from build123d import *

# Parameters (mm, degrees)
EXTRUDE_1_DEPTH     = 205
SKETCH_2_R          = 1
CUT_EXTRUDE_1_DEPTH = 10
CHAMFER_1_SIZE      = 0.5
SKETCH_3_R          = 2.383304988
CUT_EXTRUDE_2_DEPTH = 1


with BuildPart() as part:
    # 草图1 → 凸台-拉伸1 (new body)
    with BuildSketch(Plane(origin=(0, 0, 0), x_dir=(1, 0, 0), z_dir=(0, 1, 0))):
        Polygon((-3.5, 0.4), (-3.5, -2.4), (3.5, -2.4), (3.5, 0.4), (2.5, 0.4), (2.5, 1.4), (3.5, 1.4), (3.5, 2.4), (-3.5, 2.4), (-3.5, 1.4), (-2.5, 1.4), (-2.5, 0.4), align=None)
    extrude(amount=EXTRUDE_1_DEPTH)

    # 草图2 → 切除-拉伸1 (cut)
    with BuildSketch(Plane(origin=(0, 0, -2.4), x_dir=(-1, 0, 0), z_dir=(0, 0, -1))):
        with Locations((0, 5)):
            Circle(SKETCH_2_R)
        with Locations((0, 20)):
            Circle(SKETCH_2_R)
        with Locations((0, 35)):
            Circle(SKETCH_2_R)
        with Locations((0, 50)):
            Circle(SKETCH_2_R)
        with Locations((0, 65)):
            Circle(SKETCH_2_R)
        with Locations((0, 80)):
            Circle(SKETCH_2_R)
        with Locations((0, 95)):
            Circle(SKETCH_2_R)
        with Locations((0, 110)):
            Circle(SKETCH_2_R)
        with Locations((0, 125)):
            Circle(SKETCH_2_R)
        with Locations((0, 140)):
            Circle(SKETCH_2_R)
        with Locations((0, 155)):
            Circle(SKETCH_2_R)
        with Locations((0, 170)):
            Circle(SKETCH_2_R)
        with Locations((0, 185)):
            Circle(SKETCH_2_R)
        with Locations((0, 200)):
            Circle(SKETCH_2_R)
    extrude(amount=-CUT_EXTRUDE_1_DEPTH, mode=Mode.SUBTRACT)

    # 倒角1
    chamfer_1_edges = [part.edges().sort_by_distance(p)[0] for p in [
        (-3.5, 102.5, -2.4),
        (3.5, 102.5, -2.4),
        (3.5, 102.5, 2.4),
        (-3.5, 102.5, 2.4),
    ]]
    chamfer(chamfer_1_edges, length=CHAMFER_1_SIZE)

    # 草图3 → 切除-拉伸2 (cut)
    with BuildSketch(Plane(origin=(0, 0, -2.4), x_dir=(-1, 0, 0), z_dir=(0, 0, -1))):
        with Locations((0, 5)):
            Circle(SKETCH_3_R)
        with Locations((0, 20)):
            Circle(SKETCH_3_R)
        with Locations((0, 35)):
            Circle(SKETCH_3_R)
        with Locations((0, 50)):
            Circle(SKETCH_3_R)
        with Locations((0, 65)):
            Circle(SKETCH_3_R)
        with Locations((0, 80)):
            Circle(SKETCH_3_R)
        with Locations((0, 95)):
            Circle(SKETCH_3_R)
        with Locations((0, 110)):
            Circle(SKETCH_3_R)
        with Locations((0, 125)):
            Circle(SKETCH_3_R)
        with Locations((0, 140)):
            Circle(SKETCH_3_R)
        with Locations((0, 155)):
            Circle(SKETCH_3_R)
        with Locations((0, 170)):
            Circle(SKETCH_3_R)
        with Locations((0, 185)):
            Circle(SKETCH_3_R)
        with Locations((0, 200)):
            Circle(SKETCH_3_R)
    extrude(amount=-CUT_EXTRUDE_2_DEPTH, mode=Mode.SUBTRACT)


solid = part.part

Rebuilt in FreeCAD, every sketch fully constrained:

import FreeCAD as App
import Part
import Sketcher
from FreeCAD import Vector
Q = App.Units.Quantity


def edges_at(feature, points):
    """Names of the edges that pass closest to the given points."""
    edges = feature.Shape.Edges
    near = lambda p: min(range(len(edges)), key=lambda i: edges[i].distToShape(Part.Vertex(*p))[0])
    return sorted({f"Edge{near(p) + 1}" for p in points})

doc = App.newDocument("Part")
body = doc.addObject("PartDesign::Body", "Body")

# Sketch on XZ plane
sketch1 = doc.addObject("Sketcher::SketchObject", "Sketch")
body.addObject(sketch1)
sketch1.AttachmentSupport = (doc.XZ_Plane, [""])
sketch1.MapMode = "FlatFace"
sketch1.addGeometry(Part.LineSegment(Vector(-3.5, -0.4, 0), Vector(-3.5, 2.4, 0)), False)
sketch1.addGeometry(Part.LineSegment(Vector(-3.5, 2.4, 0), Vector(3.5, 2.4, 0)), False)
sketch1.addGeometry(Part.LineSegment(Vector(3.5, 2.4, 0), Vector(3.5, -0.4, 0)), False)
sketch1.addGeometry(Part.LineSegment(Vector(3.5, -0.4, 0), Vector(2.5, -0.4, 0)), False)
sketch1.addGeometry(Part.LineSegment(Vector(2.5, -0.4, 0), Vector(2.5, -1.4, 0)), False)
sketch1.addGeometry(Part.LineSegment(Vector(2.5, -1.4, 0), Vector(3.5, -1.4, 0)), False)
sketch1.addGeometry(Part.LineSegment(Vector(3.5, -1.4, 0), Vector(3.5, -2.4, 0)), False)
sketch1.addGeometry(Part.LineSegment(Vector(3.5, -2.4, 0), Vector(-3.5, -2.4, 0)), False)
sketch1.addGeometry(Part.LineSegment(Vector(-3.5, -2.4, 0), Vector(-3.5, -1.4, 0)), False)
sketch1.addGeometry(Part.LineSegment(Vector(-3.5, -1.4, 0), Vector(-2.5, -1.4, 0)), False)
sketch1.addGeometry(Part.LineSegment(Vector(-2.5, -1.4, 0), Vector(-2.5, -0.4, 0)), False)
sketch1.addGeometry(Part.LineSegment(Vector(-2.5, -0.4, 0), Vector(-3.5, -0.4, 0)), False)
sketch1.addConstraint(Sketcher.Constraint("Coincident", 0, 2, 1, 1))
sketch1.addConstraint(Sketcher.Constraint("Coincident", 1, 2, 2, 1))
sketch1.addConstraint(Sketcher.Constraint("Coincident", 2, 2, 3, 1))
sketch1.addConstraint(Sketcher.Constraint("Coincident", 3, 2, 4, 1))
sketch1.addConstraint(Sketcher.Constraint("Coincident", 4, 2, 5, 1))
sketch1.addConstraint(Sketcher.Constraint("Coincident", 5, 2, 6, 1))
sketch1.addConstraint(Sketcher.Constraint("Coincident", 6, 2, 7, 1))
sketch1.addConstraint(Sketcher.Constraint("Coincident", 7, 2, 8, 1))
sketch1.addConstraint(Sketcher.Constraint("Coincident", 8, 2, 9, 1))
sketch1.addConstraint(Sketcher.Constraint("Coincident", 9, 2, 10, 1))
sketch1.addConstraint(Sketcher.Constraint("Coincident", 10, 2, 11, 1))
sketch1.addConstraint(Sketcher.Constraint("Coincident", 11, 2, 0, 1))
sketch1.addConstraint(Sketcher.Constraint("Vertical", 0))
sketch1.addConstraint(Sketcher.Constraint("Horizontal", 1))
sketch1.addConstraint(Sketcher.Constraint("Vertical", 2))
sketch1.addConstraint(Sketcher.Constraint("Horizontal", 3))
sketch1.addConstraint(Sketcher.Constraint("Vertical", 4))
sketch1.addConstraint(Sketcher.Constraint("Horizontal", 5))
sketch1.addConstraint(Sketcher.Constraint("Vertical", 6))
sketch1.addConstraint(Sketcher.Constraint("Horizontal", 7))
sketch1.addConstraint(Sketcher.Constraint("Vertical", 8))
sketch1.addConstraint(Sketcher.Constraint("Horizontal", 9))
sketch1.addConstraint(Sketcher.Constraint("Vertical", 10))
sketch1.addConstraint(Sketcher.Constraint("Horizontal", 11))
sketch1.addConstraint(Sketcher.Constraint("Symmetric", 0, 2, 6, 2, -1, 1))
sketch1.addConstraint(Sketcher.Constraint("Symmetric", 5, 2, 8, 2, -2))
sketch1.addConstraint(Sketcher.Constraint("Symmetric", 3, 2, 10, 2, -2))
sketch1.addConstraint(Sketcher.Constraint("Vertical", 2, 2, 5, 2))
sketch1.addConstraint(Sketcher.Constraint("Equal", 11, 4))
sketch1.addConstraint(Sketcher.Constraint("Equal", 4, 6))
sketch1.addConstraint(Sketcher.Constraint("DistanceX", 1, 1, 1, 2, Q("7 mm")))
sketch1.addConstraint(Sketcher.Constraint("DistanceX", 3, 2, 3, 1, Q("1 mm")))
sketch1.addConstraint(Sketcher.Constraint("DistanceY", 0, 1, 0, 2, Q("2.8 mm")))
pad1 = doc.addObject("PartDesign::Pad", "Pad")
body.addObject(pad1)
pad1.Profile = sketch1
pad1.Length = 205
pad1.Reversed = True

# Sketch on XY plane
sketch2 = doc.addObject("Sketcher::SketchObject", "Sketch001")
body.addObject(sketch2)
sketch2.AttachmentSupport = (doc.XY_Plane, [""])
sketch2.MapMode = "FlatFace"
sketch2.AttachmentOffset = App.Placement(Vector(0, 0, -2.4), App.Rotation())
sketch2.addGeometry(Part.Circle(Vector(0, 5, 0), Vector(0, 0, 1), 1), False)
sketch2.addGeometry(Part.Circle(Vector(0, 20, 0), Vector(0, 0, 1), 1), False)
sketch2.addGeometry(Part.Circle(Vector(0, 35, 0), Vector(0, 0, 1), 1), False)
sketch2.addGeometry(Part.Circle(Vector(0, 50, 0), Vector(0, 0, 1), 1), False)
sketch2.addGeometry(Part.Circle(Vector(0, 65, 0), Vector(0, 0, 1), 1), False)
sketch2.addGeometry(Part.Circle(Vector(0, 80, 0), Vector(0, 0, 1), 1), False)
sketch2.addGeometry(Part.Circle(Vector(0, 95, 0), Vector(0, 0, 1), 1), False)
sketch2.addGeometry(Part.Circle(Vector(0, 110, 0), Vector(0, 0, 1), 1), False)
sketch2.addGeometry(Part.Circle(Vector(0, 125, 0), Vector(0, 0, 1), 1), False)
sketch2.addGeometry(Part.Circle(Vector(0, 140, 0), Vector(0, 0, 1), 1), False)
sketch2.addGeometry(Part.Circle(Vector(0, 155, 0), Vector(0, 0, 1), 1), False)
sketch2.addGeometry(Part.Circle(Vector(0, 170, 0), Vector(0, 0, 1), 1), False)
sketch2.addGeometry(Part.Circle(Vector(0, 185, 0), Vector(0, 0, 1), 1), False)
sketch2.addGeometry(Part.Circle(Vector(0, 200, 0), Vector(0, 0, 1), 1), False)
sketch2.addConstraint(Sketcher.Constraint("Equal", 0, 1))
sketch2.addConstraint(Sketcher.Constraint("Equal", 1, 2))
sketch2.addConstraint(Sketcher.Constraint("Equal", 2, 3))
sketch2.addConstraint(Sketcher.Constraint("Equal", 3, 4))
sketch2.addConstraint(Sketcher.Constraint("Equal", 4, 5))
sketch2.addConstraint(Sketcher.Constraint("Equal", 5, 6))
sketch2.addConstraint(Sketcher.Constraint("Equal", 6, 7))
sketch2.addConstraint(Sketcher.Constraint("Equal", 7, 8))
sketch2.addConstraint(Sketcher.Constraint("Equal", 8, 9))
sketch2.addConstraint(Sketcher.Constraint("Equal", 9, 10))
sketch2.addConstraint(Sketcher.Constraint("Equal", 10, 11))
sketch2.addConstraint(Sketcher.Constraint("Equal", 11, 12))
sketch2.addConstraint(Sketcher.Constraint("Equal", 12, 13))
sketch2.addConstraint(Sketcher.Constraint("PointOnObject", 0, 3, -2))
sketch2.addConstraint(Sketcher.Constraint("PointOnObject", 1, 3, -2))
sketch2.addConstraint(Sketcher.Constraint("PointOnObject", 2, 3, -2))
sketch2.addConstraint(Sketcher.Constraint("PointOnObject", 3, 3, -2))
sketch2.addConstraint(Sketcher.Constraint("PointOnObject", 4, 3, -2))
sketch2.addConstraint(Sketcher.Constraint("PointOnObject", 5, 3, -2))
sketch2.addConstraint(Sketcher.Constraint("PointOnObject", 6, 3, -2))
sketch2.addConstraint(Sketcher.Constraint("PointOnObject", 7, 3, -2))
sketch2.addConstraint(Sketcher.Constraint("PointOnObject", 8, 3, -2))
sketch2.addConstraint(Sketcher.Constraint("PointOnObject", 9, 3, -2))
sketch2.addConstraint(Sketcher.Constraint("PointOnObject", 10, 3, -2))
sketch2.addConstraint(Sketcher.Constraint("PointOnObject", 11, 3, -2))
sketch2.addConstraint(Sketcher.Constraint("PointOnObject", 12, 3, -2))
sketch2.addConstraint(Sketcher.Constraint("PointOnObject", 13, 3, -2))
sketch2.addConstraint(Sketcher.Constraint("Diameter", 0, Q("2 mm")))
sketch2.addConstraint(Sketcher.Constraint("DistanceY", -1, 1, 0, 3, Q("5 mm")))
sketch2.addConstraint(Sketcher.Constraint("DistanceY", -1, 1, 1, 3, Q("20 mm")))
sketch2.addConstraint(Sketcher.Constraint("DistanceY", -1, 1, 2, 3, Q("35 mm")))
sketch2.addConstraint(Sketcher.Constraint("DistanceY", -1, 1, 3, 3, Q("50 mm")))
sketch2.addConstraint(Sketcher.Constraint("DistanceY", -1, 1, 4, 3, Q("65 mm")))
sketch2.addConstraint(Sketcher.Constraint("DistanceY", -1, 1, 5, 3, Q("80 mm")))
sketch2.addConstraint(Sketcher.Constraint("DistanceY", -1, 1, 6, 3, Q("95 mm")))
sketch2.addConstraint(Sketcher.Constraint("DistanceY", -1, 1, 7, 3, Q("110 mm")))
sketch2.addConstraint(Sketcher.Constraint("DistanceY", -1, 1, 8, 3, Q("125 mm")))
sketch2.addConstraint(Sketcher.Constraint("DistanceY", -1, 1, 9, 3, Q("140 mm")))
sketch2.addConstraint(Sketcher.Constraint("DistanceY", -1, 1, 10, 3, Q("155 mm")))
sketch2.addConstraint(Sketcher.Constraint("DistanceY", -1, 1, 11, 3, Q("170 mm")))
sketch2.addConstraint(Sketcher.Constraint("DistanceY", -1, 1, 12, 3, Q("185 mm")))
sketch2.addConstraint(Sketcher.Constraint("DistanceY", -1, 1, 13, 3, Q("200 mm")))
pocket1 = doc.addObject("PartDesign::Pocket", "Pocket")
body.addObject(pocket1)
pocket1.Profile = sketch2
pocket1.Length = 10
pocket1.Reversed = True
doc.recompute()

chamfer = doc.addObject("PartDesign::Chamfer", "Chamfer")
body.addObject(chamfer)
chamfer.Base = (pocket1, edges_at(pocket1, [
    (-3.5, 102.5, -2.4),
    (3.5, 102.5, -2.4),
    (3.5, 102.5, 2.4),
    (-3.5, 102.5, 2.4),
]))
chamfer.Size = 0.5

# Sketch on XY plane
sketch3 = doc.addObject("Sketcher::SketchObject", "Sketch002")
body.addObject(sketch3)
sketch3.AttachmentSupport = (doc.XY_Plane, [""])
sketch3.MapMode = "FlatFace"
sketch3.AttachmentOffset = App.Placement(Vector(0, 0, -2.4), App.Rotation())
sketch3.addGeometry(Part.Circle(Vector(0, 5, 0), Vector(0, 0, 1), 2.4), False)
sketch3.addGeometry(Part.Circle(Vector(0, 20, 0), Vector(0, 0, 1), 2.4), False)
sketch3.addGeometry(Part.Circle(Vector(0, 35, 0), Vector(0, 0, 1), 2.4), False)
sketch3.addGeometry(Part.Circle(Vector(0, 50, 0), Vector(0, 0, 1), 2.4), False)
sketch3.addGeometry(Part.Circle(Vector(0, 65, 0), Vector(0, 0, 1), 2.4), False)
sketch3.addGeometry(Part.Circle(Vector(0, 80, 0), Vector(0, 0, 1), 2.4), False)
sketch3.addGeometry(Part.Circle(Vector(0, 95, 0), Vector(0, 0, 1), 2.4), False)
sketch3.addGeometry(Part.Circle(Vector(0, 110, 0), Vector(0, 0, 1), 2.4), False)
sketch3.addGeometry(Part.Circle(Vector(0, 125, 0), Vector(0, 0, 1), 2.4), False)
sketch3.addGeometry(Part.Circle(Vector(0, 140, 0), Vector(0, 0, 1), 2.4), False)
sketch3.addGeometry(Part.Circle(Vector(0, 155, 0), Vector(0, 0, 1), 2.4), False)
sketch3.addGeometry(Part.Circle(Vector(0, 170, 0), Vector(0, 0, 1), 2.4), False)
sketch3.addGeometry(Part.Circle(Vector(0, 185, 0), Vector(0, 0, 1), 2.4), False)
sketch3.addGeometry(Part.Circle(Vector(0, 200, 0), Vector(0, 0, 1), 2.4), False)
sketch3.addConstraint(Sketcher.Constraint("Equal", 0, 1))
sketch3.addConstraint(Sketcher.Constraint("Equal", 1, 2))
sketch3.addConstraint(Sketcher.Constraint("Equal", 2, 3))
sketch3.addConstraint(Sketcher.Constraint("Equal", 3, 4))
sketch3.addConstraint(Sketcher.Constraint("Equal", 4, 5))
sketch3.addConstraint(Sketcher.Constraint("Equal", 5, 6))
sketch3.addConstraint(Sketcher.Constraint("Equal", 6, 7))
sketch3.addConstraint(Sketcher.Constraint("Equal", 7, 8))
sketch3.addConstraint(Sketcher.Constraint("Equal", 8, 9))
sketch3.addConstraint(Sketcher.Constraint("Equal", 9, 10))
sketch3.addConstraint(Sketcher.Constraint("Equal", 10, 11))
sketch3.addConstraint(Sketcher.Constraint("Equal", 11, 12))
sketch3.addConstraint(Sketcher.Constraint("Equal", 12, 13))
sketch3.addConstraint(Sketcher.Constraint("PointOnObject", 0, 3, -2))
sketch3.addConstraint(Sketcher.Constraint("PointOnObject", 1, 3, -2))
sketch3.addConstraint(Sketcher.Constraint("PointOnObject", 2, 3, -2))
sketch3.addConstraint(Sketcher.Constraint("PointOnObject", 3, 3, -2))
sketch3.addConstraint(Sketcher.Constraint("PointOnObject", 4, 3, -2))
sketch3.addConstraint(Sketcher.Constraint("PointOnObject", 5, 3, -2))
sketch3.addConstraint(Sketcher.Constraint("PointOnObject", 6, 3, -2))
sketch3.addConstraint(Sketcher.Constraint("PointOnObject", 7, 3, -2))
sketch3.addConstraint(Sketcher.Constraint("PointOnObject", 8, 3, -2))
sketch3.addConstraint(Sketcher.Constraint("PointOnObject", 9, 3, -2))
sketch3.addConstraint(Sketcher.Constraint("PointOnObject", 10, 3, -2))
sketch3.addConstraint(Sketcher.Constraint("PointOnObject", 11, 3, -2))
sketch3.addConstraint(Sketcher.Constraint("PointOnObject", 12, 3, -2))
sketch3.addConstraint(Sketcher.Constraint("PointOnObject", 13, 3, -2))
sketch3.addConstraint(Sketcher.Constraint("DistanceY", -1, 1, 0, 3, Q("5 mm")))
sketch3.addConstraint(Sketcher.Constraint("DistanceY", -1, 1, 1, 3, Q("20 mm")))
sketch3.addConstraint(Sketcher.Constraint("DistanceY", -1, 1, 2, 3, Q("35 mm")))
sketch3.addConstraint(Sketcher.Constraint("DistanceY", -1, 1, 3, 3, Q("50 mm")))
sketch3.addConstraint(Sketcher.Constraint("DistanceY", -1, 1, 4, 3, Q("65 mm")))
sketch3.addConstraint(Sketcher.Constraint("DistanceY", -1, 1, 5, 3, Q("80 mm")))
sketch3.addConstraint(Sketcher.Constraint("DistanceY", -1, 1, 6, 3, Q("95 mm")))
sketch3.addConstraint(Sketcher.Constraint("DistanceY", -1, 1, 7, 3, Q("110 mm")))
sketch3.addConstraint(Sketcher.Constraint("DistanceY", -1, 1, 8, 3, Q("125 mm")))
sketch3.addConstraint(Sketcher.Constraint("DistanceY", -1, 1, 9, 3, Q("140 mm")))
sketch3.addConstraint(Sketcher.Constraint("DistanceY", -1, 1, 10, 3, Q("155 mm")))
sketch3.addConstraint(Sketcher.Constraint("DistanceY", -1, 1, 11, 3, Q("170 mm")))
sketch3.addConstraint(Sketcher.Constraint("DistanceY", -1, 1, 12, 3, Q("185 mm")))
sketch3.addConstraint(Sketcher.Constraint("DistanceY", -1, 1, 13, 3, Q("200 mm")))
sketch3.addConstraint(Sketcher.Constraint("Diameter", 0, Q("4.76661 mm")))
pocket2 = doc.addObject("PartDesign::Pocket", "Pocket001")
body.addObject(pocket2)
pocket2.Profile = sketch3
pocket2.Length = 1
pocket2.Reversed = True

doc.recompute()
